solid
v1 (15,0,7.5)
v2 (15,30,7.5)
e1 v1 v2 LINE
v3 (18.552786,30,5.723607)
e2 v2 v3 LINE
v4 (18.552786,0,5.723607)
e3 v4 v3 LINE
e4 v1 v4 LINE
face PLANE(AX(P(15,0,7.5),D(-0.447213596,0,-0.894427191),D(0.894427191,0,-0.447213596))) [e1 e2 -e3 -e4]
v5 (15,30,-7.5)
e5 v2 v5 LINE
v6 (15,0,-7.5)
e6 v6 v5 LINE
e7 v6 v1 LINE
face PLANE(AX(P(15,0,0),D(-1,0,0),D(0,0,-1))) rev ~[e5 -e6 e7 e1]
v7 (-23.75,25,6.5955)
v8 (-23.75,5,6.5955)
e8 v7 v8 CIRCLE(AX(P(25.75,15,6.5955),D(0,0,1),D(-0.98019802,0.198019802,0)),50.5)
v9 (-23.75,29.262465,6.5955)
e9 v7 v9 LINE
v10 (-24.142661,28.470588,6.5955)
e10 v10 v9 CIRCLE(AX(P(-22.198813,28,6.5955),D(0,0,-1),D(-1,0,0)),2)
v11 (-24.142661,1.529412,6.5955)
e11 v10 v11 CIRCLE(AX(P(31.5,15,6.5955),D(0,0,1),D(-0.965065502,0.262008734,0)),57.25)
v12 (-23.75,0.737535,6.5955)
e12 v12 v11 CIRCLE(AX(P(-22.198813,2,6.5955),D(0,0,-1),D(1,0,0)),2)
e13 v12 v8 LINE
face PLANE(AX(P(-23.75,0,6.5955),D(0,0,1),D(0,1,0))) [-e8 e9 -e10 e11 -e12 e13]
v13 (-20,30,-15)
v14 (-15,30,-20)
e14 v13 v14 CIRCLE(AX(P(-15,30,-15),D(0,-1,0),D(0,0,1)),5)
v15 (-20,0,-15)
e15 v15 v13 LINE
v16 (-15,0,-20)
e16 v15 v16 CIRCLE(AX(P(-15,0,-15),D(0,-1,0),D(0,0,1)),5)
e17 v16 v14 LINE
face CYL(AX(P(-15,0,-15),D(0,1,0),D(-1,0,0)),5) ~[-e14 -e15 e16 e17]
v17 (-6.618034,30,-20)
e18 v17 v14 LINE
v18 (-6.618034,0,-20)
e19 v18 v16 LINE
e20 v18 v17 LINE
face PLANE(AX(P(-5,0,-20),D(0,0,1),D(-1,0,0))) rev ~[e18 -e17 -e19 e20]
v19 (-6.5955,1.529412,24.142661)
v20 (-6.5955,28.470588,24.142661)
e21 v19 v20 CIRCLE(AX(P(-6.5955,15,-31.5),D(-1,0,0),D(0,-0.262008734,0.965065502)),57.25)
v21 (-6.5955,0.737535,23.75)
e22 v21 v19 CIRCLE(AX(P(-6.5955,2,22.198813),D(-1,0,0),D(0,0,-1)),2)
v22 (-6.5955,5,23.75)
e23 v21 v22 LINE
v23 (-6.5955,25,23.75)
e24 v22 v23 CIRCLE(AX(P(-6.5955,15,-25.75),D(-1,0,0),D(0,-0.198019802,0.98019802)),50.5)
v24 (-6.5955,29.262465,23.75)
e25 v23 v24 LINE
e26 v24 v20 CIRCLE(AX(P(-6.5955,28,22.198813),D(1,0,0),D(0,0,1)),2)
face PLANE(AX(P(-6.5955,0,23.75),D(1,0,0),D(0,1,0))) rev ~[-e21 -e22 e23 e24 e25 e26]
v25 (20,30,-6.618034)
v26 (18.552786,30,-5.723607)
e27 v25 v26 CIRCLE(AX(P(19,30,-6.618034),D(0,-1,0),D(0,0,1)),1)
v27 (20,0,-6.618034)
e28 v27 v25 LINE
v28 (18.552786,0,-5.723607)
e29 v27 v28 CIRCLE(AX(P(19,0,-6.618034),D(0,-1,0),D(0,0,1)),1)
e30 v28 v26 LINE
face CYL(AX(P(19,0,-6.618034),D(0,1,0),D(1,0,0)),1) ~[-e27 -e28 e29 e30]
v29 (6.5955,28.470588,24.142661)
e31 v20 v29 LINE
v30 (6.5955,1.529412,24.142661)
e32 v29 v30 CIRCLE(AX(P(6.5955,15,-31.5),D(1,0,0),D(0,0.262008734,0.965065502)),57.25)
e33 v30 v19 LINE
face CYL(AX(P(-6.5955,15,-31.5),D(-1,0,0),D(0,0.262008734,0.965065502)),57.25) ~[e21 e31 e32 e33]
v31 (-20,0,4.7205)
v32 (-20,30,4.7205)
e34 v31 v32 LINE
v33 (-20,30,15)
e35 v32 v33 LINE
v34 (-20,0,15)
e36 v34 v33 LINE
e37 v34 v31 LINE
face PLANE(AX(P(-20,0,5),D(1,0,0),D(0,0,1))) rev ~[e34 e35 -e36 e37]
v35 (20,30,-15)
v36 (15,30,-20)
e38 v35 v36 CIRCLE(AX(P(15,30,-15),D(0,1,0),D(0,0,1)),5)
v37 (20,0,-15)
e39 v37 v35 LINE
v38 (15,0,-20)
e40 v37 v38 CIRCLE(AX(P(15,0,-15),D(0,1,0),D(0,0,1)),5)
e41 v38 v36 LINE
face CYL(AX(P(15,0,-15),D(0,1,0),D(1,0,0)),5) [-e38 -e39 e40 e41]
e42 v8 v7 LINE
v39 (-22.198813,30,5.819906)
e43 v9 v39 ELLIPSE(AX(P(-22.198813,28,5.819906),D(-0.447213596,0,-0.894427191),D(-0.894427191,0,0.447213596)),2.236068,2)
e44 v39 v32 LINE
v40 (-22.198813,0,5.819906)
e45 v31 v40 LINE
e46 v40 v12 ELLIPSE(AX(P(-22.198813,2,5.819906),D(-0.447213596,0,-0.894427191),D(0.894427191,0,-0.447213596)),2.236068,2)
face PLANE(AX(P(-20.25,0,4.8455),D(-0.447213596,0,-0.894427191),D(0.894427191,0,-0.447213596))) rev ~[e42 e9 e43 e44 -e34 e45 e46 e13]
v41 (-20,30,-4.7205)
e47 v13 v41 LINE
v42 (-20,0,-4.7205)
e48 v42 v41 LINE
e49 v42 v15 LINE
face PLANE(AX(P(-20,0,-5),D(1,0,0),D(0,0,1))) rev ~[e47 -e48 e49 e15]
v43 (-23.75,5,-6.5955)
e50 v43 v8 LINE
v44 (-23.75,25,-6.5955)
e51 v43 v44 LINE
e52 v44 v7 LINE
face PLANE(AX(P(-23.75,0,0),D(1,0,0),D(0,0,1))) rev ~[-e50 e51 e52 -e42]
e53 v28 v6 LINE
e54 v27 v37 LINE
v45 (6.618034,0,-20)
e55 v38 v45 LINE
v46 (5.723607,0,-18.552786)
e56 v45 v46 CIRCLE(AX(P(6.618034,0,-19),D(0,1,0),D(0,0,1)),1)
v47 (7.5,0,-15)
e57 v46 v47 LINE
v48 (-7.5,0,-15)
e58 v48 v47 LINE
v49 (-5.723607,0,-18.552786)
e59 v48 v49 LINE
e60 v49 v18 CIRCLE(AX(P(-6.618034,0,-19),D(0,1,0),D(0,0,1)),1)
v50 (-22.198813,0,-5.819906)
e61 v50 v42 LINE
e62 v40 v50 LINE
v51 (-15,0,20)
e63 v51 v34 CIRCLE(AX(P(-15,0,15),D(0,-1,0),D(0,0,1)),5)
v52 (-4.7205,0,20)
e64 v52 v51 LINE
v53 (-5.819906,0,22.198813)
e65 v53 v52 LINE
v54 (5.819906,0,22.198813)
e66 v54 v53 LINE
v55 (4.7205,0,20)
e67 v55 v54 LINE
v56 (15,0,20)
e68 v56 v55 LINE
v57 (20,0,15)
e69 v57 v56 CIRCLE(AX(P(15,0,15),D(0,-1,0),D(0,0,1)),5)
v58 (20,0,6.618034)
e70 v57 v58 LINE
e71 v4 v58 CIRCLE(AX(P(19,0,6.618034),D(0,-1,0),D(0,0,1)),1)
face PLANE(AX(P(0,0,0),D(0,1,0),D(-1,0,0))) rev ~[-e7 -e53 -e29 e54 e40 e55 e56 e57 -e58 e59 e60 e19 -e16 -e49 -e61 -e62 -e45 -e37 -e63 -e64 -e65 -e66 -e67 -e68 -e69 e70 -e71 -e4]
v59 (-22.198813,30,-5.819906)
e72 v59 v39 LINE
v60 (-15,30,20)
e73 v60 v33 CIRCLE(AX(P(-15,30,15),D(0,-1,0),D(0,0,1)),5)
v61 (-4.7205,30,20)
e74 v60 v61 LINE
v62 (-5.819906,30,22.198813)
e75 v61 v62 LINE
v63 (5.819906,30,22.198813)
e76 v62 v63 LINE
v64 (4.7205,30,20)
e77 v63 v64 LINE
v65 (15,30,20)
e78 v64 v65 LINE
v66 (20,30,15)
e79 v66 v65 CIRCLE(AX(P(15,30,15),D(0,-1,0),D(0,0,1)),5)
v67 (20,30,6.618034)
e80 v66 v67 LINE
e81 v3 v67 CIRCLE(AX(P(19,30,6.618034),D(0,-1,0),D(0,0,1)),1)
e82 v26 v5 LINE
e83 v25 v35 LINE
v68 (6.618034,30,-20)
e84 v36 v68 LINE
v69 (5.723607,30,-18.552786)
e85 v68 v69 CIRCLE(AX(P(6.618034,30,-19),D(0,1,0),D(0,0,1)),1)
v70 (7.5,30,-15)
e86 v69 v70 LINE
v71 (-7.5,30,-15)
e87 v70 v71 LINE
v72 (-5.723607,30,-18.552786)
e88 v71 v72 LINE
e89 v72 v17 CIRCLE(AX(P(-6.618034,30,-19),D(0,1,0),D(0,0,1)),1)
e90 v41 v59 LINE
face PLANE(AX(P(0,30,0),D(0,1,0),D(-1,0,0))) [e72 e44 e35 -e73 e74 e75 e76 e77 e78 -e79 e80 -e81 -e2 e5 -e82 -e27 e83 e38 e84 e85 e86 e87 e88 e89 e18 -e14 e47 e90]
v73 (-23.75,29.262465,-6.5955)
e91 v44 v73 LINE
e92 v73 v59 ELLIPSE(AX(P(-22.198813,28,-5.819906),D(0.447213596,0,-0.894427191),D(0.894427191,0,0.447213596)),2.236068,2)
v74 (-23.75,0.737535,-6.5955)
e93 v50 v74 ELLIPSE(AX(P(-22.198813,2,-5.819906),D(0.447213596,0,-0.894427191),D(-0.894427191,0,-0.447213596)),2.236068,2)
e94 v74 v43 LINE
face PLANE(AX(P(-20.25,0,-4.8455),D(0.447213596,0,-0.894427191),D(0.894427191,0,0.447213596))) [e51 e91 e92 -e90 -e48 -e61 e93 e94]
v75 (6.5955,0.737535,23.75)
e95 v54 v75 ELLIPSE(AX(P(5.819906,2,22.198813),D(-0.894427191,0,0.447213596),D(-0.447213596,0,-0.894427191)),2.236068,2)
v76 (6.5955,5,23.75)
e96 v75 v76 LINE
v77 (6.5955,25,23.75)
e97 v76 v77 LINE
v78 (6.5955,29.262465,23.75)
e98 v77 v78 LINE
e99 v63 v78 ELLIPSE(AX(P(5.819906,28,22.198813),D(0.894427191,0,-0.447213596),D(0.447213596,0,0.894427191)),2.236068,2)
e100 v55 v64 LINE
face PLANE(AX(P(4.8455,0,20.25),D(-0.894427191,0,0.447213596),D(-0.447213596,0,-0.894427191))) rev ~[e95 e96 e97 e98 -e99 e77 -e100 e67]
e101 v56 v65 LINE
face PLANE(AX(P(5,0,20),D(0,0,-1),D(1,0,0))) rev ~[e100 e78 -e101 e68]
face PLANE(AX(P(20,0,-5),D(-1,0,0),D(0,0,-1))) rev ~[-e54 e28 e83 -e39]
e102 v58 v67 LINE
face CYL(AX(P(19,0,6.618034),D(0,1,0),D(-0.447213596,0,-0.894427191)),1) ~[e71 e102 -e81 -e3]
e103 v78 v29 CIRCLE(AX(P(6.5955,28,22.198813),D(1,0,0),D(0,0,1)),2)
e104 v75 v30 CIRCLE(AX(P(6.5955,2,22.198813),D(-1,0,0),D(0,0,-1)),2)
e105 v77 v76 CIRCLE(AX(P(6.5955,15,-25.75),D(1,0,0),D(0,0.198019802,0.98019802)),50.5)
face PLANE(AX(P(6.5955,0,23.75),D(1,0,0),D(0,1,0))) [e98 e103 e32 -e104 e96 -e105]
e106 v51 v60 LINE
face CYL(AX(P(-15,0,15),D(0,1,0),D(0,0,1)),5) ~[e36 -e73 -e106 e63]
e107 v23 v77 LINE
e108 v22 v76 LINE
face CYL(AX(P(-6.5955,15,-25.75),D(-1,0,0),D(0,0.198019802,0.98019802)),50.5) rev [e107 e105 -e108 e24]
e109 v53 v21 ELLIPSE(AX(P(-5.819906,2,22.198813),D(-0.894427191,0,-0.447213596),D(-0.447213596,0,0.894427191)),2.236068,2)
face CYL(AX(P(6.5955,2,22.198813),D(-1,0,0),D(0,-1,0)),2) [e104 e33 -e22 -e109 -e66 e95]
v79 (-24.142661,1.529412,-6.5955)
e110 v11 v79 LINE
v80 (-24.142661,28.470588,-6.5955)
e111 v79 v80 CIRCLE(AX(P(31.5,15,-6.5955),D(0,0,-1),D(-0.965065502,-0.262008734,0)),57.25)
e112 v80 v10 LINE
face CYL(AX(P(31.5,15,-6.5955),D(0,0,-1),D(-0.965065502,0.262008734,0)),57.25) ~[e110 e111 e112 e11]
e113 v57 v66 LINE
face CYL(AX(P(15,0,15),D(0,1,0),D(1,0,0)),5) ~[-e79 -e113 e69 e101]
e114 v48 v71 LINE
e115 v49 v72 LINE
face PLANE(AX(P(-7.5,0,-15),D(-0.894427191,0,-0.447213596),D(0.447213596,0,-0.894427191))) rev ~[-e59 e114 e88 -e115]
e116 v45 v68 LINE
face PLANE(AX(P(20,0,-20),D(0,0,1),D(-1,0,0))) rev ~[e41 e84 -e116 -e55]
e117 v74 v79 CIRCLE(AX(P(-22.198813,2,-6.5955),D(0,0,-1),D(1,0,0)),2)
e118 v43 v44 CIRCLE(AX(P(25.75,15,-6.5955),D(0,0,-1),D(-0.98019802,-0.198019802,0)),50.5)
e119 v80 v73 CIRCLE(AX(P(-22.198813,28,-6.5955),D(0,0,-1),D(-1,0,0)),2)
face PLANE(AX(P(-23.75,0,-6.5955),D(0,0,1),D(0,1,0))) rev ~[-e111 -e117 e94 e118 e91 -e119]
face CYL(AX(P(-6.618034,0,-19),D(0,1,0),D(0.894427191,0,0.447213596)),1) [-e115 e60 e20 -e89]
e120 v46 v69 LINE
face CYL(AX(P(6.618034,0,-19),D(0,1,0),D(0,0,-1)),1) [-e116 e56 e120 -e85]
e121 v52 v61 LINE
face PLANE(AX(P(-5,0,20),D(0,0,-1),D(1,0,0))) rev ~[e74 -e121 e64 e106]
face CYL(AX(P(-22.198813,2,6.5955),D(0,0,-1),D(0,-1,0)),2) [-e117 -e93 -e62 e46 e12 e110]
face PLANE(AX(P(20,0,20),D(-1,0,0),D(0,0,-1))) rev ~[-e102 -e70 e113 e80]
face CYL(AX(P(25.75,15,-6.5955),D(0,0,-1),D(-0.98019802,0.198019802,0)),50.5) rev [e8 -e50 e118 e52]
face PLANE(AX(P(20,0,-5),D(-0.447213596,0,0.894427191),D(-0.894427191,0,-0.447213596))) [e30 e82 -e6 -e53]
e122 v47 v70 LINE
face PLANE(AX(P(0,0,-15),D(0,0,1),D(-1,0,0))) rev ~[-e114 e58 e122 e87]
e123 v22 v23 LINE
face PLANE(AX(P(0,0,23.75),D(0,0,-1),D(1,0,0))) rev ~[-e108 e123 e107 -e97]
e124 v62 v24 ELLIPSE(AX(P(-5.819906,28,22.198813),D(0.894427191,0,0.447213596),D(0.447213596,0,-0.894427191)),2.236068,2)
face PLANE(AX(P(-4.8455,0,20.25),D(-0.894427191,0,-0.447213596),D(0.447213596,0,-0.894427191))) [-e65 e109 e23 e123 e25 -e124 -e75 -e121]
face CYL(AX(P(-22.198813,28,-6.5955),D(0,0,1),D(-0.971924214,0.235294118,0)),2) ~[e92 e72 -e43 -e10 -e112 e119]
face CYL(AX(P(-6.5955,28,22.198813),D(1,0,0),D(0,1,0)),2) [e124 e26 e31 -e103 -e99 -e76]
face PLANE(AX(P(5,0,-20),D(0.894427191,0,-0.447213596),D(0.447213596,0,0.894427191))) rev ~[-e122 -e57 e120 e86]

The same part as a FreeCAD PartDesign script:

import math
import FreeCAD as App
import Part
import Sketcher
from FreeCAD import Vector
Q = App.Units.Quantity


def edges_at(feature, points):
    """Names of the edges that pass closest to the given points."""
    edges = feature.Shape.Edges
    near = lambda p: min(range(len(edges)), key=lambda i: edges[i].distToShape(Part.Vertex(*p))[0])
    return sorted({f"Edge{near(p) + 1}" for p in points})

doc = App.newDocument("Part")
body = doc.addObject("PartDesign::Body", "Body")

sketch1 = body.newObject("Sketcher::SketchObject", "Sketch")
sketch1.AttachmentSupport = (doc.getObject("XZ_Plane"), [""])
sketch1.MapMode = "FlatFace"
sketch1.addGeometry([
    Part.LineSegment(Vector(20, -5, 0), Vector(20, -20, 0)),
    Part.LineSegment(Vector(20, -20, 0), Vector(5, -20, 0)),
    Part.LineSegment(Vector(5, -20, 0), Vector(7.5, -15, 0)),
    Part.LineSegment(Vector(7.5, -15, 0), Vector(-7.5, -15, 0)),
    Part.LineSegment(Vector(-7.5, -15, 0), Vector(-5, -20, 0)),
    Part.LineSegment(Vector(-5, -20, 0), Vector(-20, -20, 0)),
    Part.LineSegment(Vector(-20, -20, 0), Vector(-20, -4.7, 0)),
    Part.LineSegment(Vector(-20, -4.7, 0), Vector(-23.8, -6.6, 0)),
    Part.LineSegment(Vector(-23.8, -6.6, 0), Vector(-23.8, 6.6, 0)),
    Part.LineSegment(Vector(-23.8, 6.6, 0), Vector(-20, 4.7, 0)),
    Part.LineSegment(Vector(-20, 4.7, 0), Vector(-20, 20, 0)),
    Part.LineSegment(Vector(-20, 20, 0), Vector(-4.7, 20, 0)),
    Part.LineSegment(Vector(-4.7, 20, 0), Vector(-6.6, 23.8, 0)),
    Part.LineSegment(Vector(-6.6, 23.8, 0), Vector(6.6, 23.8, 0)),
    Part.LineSegment(Vector(6.6, 23.8, 0), Vector(4.7, 20, 0)),
    Part.LineSegment(Vector(4.7, 20, 0), Vector(20, 20, 0)),
    Part.LineSegment(Vector(20, 20, 0), Vector(20, 5, 0)),
    Part.LineSegment(Vector(20, 5, 0), Vector(15, 7.5, 0)),
    Part.LineSegment(Vector(15, 7.5, 0), Vector(15, -7.5, 0)),
    Part.LineSegment(Vector(15, -7.5, 0), Vector(20, -5, 0)),
], False)
sketch1.addConstraint([
    Sketcher.Constraint("Coincident", 0, 2, 1, 1),
    Sketcher.Constraint("Coincident", 1, 2, 2, 1),
    Sketcher.Constraint("Coincident", 2, 2, 3, 1),
    Sketcher.Constraint("Coincident", 3, 2, 4, 1),
    Sketcher.Constraint("Coincident", 4, 2, 5, 1),
    Sketcher.Constraint("Coincident", 5, 2, 6, 1),
    Sketcher.Constraint("Coincident", 6, 2, 7, 1),
    Sketcher.Constraint("Coincident", 7, 2, 8, 1),
    Sketcher.Constraint("Coincident", 8, 2, 9, 1),
    Sketcher.Constraint("Coincident", 9, 2, 10, 1),
    Sketcher.Constraint("Coincident", 10, 2, 11, 1),
    Sketcher.Constraint("Coincident", 11, 2, 12, 1),
    Sketcher.Constraint("Coincident", 12, 2, 13, 1),
    Sketcher.Constraint("Coincident", 13, 2, 14, 1),
    Sketcher.Constraint("Coincident", 14, 2, 15, 1),
    Sketcher.Constraint("Coincident", 15, 2, 16, 1),
    Sketcher.Constraint("Coincident", 16, 2, 17, 1),
    Sketcher.Constraint("Coincident", 17, 2, 18, 1),
    Sketcher.Constraint("Coincident", 18, 2, 19, 1),
    Sketcher.Constraint("Coincident", 19, 2, 0, 1),
    Sketcher.Constraint("Vertical", 0),
    Sketcher.Constraint("Horizontal", 1),
    Sketcher.Constraint("Horizontal", 3),
    Sketcher.Constraint("Horizontal", 5),
    Sketcher.Constraint("Vertical", 6),
    Sketcher.Constraint("Vertical", 8),
    Sketcher.Constraint("Vertical", 10),
    Sketcher.Constraint("Horizontal", 11),
    Sketcher.Constraint("Horizontal", 13),
    Sketcher.Constraint("Horizontal", 15),
    Sketcher.Constraint("Vertical", 16),
    Sketcher.Constraint("Vertical", 18),
    Sketcher.Constraint("Symmetric", 0, 2, 10, 2, -1, 1),
    Sketcher.Constraint("Symmetric", 5, 2, 15, 2, -1, 1),
    Sketcher.Constraint("Symmetric", 1, 2, 4, 2, -2),
    Sketcher.Constraint("Symmetric", 6, 2, 9, 2, -1),
    Sketcher.Constraint("Perpendicular", 4, 7),
    Sketcher.Constraint("Perpendicular", 2, 9),
    Sketcher.Constraint("Perpendicular", 7, 12),
    Sketcher.Constraint("Perpendicular", 9, 14),
    Sketcher.Constraint("Perpendicular", 14, 17),
    Sketcher.Constraint("Perpendicular", 12, 19),
    Sketcher.Constraint("Equal", 1, 3),
    Sketcher.Constraint("Equal", 11, 15),
    Sketcher.Constraint("Equal", 5, 0),
    Sketcher.Constraint("Equal", 15, 6),
    Sketcher.Constraint("Equal", 13, 8),
    Sketcher.Constraint("Equal", 0, 16),
    Sketcher.Constraint("Equal", 16, 18),
    Sketcher.Constraint("Equal", 2, 4),
    Sketcher.Constraint("Equal", 9, 12),
    Sketcher.Constraint("DistanceX", -1, 1, 1, 2, Q("5 mm")),
    Sketcher.Constraint("DistanceY", 1, 2, 2, 2, Q("5 mm")),
    Sketcher.Constraint("DistanceX", 5, 2, 0, 2, Q("40 mm")),
    Sketcher.Constraint("DistanceX", 13, 1, 13, 2, Q("13.191 mm")),
    Sketcher.Constraint("DistanceX", 7, 2, -1, 1, Q("23.75 mm")),
])
pad1 = body.newObject("PartDesign::Pad", "Pad")
pad1.Profile = sketch1
pad1.Length = 30
pad1.Reversed = True
doc.recompute()

fillet = body.newObject("PartDesign::Fillet", "Fillet")
fillet.Base = (pad1, edges_at(pad1, [
    (20, 15, 20),
    (20, 15, -20),
    (-20, 15, -20),
    (-20, 15, 20),
]))
fillet.Radius = 5
doc.recompute()

fillet2 = body.newObject("PartDesign::Fillet", "Fillet001")
fillet2.Base = (fillet, edges_at(fillet, [
    (20, 15, 5),
    (20, 15, -5),
    (5, 15, -20),
    (-5, 15, -20),
]))
fillet2.Radius = 1

sketch2 = body.newObject("Sketcher::SketchObject", "Sketch001")
sketch2.AttachmentSupport = (doc.getObject("YZ_Plane"), [""])
sketch2.MapMode = "FlatFace"
sketch2.AttachmentOffset = App.Placement(Vector(0, 0, -6.5955), App.Rotation())
sketch2.addGeometry([
    Part.ArcOfCircle(Part.Circle(Vector(15, -26, 0), Vector(0, 0, 1), 50), math.radians(79), math.radians(101)),
    Part.LineSegment(Vector(25, 24, 0), Vector(30, 24, 0)),
    Part.ArcOfCircle(Part.Circle(Vector(15, -32, 0), Vector(0, 0, 1), 57), math.radians(75), math.radians(105)),
    Part.LineSegment(Vector(0, 24, 0), Vector(5, 24, 0)),
], False)
sketch2.addConstraint([
    Sketcher.Constraint("Coincident", 0, 1, 1, 1),
    Sketcher.Constraint("Coincident", 1, 2, 2, 1),
    Sketcher.Constraint("Coincident", 2, 2, 3, 1),
    Sketcher.Constraint("Coincident", 3, 2, 0, 2),
    Sketcher.Constraint("Horizontal", 1),
    Sketcher.Constraint("Horizontal", 3),
    Sketcher.Constraint("PointOnObject", 2, 2, -2),
    Sketcher.Constraint("Horizontal", 1, 2, 2, 2),
    Sketcher.Constraint("Vertical", 0, 3, 2, 3),
    Sketcher.Constraint("DistanceX", 1, 1, 1, 2, Q("5 mm")),
    Sketcher.Constraint("Radius", 0, Q("50.5 mm")),
    Sketcher.Constraint("Radius", 2, Q("57.25 mm")),
    Sketcher.Constraint("DistanceY", 2, 3, 0, 3, Q("5.75 mm")),
    Sketcher.Constraint("DistanceY", 2, 3, -1, 1, Q("31.5 mm")),
])
pad2 = body.newObject("PartDesign::Pad", "Pad001")
pad2.Profile = sketch2
pad2.Length = 13.191
doc.recompute()

fillet3 = body.newObject("PartDesign::Fillet", "Fillet002")
fillet3.Base = (pad2, edges_at(pad2, [(0, 30, 23.75), (0, 0, 23.75)]))
fillet3.Radius = 2
doc.recompute()

polarpattern = body.newObject("PartDesign::PolarPattern", "PolarPattern")
polarpattern.Originals = [pad2, fillet3]
polarpattern.Axis = (doc.getObject("Y_Axis"), [""])
polarpattern.Angle = 90
polarpattern.Occurrences = 2
polarpattern.Reversed = True
body.Tip = polarpattern

doc.recompute()
